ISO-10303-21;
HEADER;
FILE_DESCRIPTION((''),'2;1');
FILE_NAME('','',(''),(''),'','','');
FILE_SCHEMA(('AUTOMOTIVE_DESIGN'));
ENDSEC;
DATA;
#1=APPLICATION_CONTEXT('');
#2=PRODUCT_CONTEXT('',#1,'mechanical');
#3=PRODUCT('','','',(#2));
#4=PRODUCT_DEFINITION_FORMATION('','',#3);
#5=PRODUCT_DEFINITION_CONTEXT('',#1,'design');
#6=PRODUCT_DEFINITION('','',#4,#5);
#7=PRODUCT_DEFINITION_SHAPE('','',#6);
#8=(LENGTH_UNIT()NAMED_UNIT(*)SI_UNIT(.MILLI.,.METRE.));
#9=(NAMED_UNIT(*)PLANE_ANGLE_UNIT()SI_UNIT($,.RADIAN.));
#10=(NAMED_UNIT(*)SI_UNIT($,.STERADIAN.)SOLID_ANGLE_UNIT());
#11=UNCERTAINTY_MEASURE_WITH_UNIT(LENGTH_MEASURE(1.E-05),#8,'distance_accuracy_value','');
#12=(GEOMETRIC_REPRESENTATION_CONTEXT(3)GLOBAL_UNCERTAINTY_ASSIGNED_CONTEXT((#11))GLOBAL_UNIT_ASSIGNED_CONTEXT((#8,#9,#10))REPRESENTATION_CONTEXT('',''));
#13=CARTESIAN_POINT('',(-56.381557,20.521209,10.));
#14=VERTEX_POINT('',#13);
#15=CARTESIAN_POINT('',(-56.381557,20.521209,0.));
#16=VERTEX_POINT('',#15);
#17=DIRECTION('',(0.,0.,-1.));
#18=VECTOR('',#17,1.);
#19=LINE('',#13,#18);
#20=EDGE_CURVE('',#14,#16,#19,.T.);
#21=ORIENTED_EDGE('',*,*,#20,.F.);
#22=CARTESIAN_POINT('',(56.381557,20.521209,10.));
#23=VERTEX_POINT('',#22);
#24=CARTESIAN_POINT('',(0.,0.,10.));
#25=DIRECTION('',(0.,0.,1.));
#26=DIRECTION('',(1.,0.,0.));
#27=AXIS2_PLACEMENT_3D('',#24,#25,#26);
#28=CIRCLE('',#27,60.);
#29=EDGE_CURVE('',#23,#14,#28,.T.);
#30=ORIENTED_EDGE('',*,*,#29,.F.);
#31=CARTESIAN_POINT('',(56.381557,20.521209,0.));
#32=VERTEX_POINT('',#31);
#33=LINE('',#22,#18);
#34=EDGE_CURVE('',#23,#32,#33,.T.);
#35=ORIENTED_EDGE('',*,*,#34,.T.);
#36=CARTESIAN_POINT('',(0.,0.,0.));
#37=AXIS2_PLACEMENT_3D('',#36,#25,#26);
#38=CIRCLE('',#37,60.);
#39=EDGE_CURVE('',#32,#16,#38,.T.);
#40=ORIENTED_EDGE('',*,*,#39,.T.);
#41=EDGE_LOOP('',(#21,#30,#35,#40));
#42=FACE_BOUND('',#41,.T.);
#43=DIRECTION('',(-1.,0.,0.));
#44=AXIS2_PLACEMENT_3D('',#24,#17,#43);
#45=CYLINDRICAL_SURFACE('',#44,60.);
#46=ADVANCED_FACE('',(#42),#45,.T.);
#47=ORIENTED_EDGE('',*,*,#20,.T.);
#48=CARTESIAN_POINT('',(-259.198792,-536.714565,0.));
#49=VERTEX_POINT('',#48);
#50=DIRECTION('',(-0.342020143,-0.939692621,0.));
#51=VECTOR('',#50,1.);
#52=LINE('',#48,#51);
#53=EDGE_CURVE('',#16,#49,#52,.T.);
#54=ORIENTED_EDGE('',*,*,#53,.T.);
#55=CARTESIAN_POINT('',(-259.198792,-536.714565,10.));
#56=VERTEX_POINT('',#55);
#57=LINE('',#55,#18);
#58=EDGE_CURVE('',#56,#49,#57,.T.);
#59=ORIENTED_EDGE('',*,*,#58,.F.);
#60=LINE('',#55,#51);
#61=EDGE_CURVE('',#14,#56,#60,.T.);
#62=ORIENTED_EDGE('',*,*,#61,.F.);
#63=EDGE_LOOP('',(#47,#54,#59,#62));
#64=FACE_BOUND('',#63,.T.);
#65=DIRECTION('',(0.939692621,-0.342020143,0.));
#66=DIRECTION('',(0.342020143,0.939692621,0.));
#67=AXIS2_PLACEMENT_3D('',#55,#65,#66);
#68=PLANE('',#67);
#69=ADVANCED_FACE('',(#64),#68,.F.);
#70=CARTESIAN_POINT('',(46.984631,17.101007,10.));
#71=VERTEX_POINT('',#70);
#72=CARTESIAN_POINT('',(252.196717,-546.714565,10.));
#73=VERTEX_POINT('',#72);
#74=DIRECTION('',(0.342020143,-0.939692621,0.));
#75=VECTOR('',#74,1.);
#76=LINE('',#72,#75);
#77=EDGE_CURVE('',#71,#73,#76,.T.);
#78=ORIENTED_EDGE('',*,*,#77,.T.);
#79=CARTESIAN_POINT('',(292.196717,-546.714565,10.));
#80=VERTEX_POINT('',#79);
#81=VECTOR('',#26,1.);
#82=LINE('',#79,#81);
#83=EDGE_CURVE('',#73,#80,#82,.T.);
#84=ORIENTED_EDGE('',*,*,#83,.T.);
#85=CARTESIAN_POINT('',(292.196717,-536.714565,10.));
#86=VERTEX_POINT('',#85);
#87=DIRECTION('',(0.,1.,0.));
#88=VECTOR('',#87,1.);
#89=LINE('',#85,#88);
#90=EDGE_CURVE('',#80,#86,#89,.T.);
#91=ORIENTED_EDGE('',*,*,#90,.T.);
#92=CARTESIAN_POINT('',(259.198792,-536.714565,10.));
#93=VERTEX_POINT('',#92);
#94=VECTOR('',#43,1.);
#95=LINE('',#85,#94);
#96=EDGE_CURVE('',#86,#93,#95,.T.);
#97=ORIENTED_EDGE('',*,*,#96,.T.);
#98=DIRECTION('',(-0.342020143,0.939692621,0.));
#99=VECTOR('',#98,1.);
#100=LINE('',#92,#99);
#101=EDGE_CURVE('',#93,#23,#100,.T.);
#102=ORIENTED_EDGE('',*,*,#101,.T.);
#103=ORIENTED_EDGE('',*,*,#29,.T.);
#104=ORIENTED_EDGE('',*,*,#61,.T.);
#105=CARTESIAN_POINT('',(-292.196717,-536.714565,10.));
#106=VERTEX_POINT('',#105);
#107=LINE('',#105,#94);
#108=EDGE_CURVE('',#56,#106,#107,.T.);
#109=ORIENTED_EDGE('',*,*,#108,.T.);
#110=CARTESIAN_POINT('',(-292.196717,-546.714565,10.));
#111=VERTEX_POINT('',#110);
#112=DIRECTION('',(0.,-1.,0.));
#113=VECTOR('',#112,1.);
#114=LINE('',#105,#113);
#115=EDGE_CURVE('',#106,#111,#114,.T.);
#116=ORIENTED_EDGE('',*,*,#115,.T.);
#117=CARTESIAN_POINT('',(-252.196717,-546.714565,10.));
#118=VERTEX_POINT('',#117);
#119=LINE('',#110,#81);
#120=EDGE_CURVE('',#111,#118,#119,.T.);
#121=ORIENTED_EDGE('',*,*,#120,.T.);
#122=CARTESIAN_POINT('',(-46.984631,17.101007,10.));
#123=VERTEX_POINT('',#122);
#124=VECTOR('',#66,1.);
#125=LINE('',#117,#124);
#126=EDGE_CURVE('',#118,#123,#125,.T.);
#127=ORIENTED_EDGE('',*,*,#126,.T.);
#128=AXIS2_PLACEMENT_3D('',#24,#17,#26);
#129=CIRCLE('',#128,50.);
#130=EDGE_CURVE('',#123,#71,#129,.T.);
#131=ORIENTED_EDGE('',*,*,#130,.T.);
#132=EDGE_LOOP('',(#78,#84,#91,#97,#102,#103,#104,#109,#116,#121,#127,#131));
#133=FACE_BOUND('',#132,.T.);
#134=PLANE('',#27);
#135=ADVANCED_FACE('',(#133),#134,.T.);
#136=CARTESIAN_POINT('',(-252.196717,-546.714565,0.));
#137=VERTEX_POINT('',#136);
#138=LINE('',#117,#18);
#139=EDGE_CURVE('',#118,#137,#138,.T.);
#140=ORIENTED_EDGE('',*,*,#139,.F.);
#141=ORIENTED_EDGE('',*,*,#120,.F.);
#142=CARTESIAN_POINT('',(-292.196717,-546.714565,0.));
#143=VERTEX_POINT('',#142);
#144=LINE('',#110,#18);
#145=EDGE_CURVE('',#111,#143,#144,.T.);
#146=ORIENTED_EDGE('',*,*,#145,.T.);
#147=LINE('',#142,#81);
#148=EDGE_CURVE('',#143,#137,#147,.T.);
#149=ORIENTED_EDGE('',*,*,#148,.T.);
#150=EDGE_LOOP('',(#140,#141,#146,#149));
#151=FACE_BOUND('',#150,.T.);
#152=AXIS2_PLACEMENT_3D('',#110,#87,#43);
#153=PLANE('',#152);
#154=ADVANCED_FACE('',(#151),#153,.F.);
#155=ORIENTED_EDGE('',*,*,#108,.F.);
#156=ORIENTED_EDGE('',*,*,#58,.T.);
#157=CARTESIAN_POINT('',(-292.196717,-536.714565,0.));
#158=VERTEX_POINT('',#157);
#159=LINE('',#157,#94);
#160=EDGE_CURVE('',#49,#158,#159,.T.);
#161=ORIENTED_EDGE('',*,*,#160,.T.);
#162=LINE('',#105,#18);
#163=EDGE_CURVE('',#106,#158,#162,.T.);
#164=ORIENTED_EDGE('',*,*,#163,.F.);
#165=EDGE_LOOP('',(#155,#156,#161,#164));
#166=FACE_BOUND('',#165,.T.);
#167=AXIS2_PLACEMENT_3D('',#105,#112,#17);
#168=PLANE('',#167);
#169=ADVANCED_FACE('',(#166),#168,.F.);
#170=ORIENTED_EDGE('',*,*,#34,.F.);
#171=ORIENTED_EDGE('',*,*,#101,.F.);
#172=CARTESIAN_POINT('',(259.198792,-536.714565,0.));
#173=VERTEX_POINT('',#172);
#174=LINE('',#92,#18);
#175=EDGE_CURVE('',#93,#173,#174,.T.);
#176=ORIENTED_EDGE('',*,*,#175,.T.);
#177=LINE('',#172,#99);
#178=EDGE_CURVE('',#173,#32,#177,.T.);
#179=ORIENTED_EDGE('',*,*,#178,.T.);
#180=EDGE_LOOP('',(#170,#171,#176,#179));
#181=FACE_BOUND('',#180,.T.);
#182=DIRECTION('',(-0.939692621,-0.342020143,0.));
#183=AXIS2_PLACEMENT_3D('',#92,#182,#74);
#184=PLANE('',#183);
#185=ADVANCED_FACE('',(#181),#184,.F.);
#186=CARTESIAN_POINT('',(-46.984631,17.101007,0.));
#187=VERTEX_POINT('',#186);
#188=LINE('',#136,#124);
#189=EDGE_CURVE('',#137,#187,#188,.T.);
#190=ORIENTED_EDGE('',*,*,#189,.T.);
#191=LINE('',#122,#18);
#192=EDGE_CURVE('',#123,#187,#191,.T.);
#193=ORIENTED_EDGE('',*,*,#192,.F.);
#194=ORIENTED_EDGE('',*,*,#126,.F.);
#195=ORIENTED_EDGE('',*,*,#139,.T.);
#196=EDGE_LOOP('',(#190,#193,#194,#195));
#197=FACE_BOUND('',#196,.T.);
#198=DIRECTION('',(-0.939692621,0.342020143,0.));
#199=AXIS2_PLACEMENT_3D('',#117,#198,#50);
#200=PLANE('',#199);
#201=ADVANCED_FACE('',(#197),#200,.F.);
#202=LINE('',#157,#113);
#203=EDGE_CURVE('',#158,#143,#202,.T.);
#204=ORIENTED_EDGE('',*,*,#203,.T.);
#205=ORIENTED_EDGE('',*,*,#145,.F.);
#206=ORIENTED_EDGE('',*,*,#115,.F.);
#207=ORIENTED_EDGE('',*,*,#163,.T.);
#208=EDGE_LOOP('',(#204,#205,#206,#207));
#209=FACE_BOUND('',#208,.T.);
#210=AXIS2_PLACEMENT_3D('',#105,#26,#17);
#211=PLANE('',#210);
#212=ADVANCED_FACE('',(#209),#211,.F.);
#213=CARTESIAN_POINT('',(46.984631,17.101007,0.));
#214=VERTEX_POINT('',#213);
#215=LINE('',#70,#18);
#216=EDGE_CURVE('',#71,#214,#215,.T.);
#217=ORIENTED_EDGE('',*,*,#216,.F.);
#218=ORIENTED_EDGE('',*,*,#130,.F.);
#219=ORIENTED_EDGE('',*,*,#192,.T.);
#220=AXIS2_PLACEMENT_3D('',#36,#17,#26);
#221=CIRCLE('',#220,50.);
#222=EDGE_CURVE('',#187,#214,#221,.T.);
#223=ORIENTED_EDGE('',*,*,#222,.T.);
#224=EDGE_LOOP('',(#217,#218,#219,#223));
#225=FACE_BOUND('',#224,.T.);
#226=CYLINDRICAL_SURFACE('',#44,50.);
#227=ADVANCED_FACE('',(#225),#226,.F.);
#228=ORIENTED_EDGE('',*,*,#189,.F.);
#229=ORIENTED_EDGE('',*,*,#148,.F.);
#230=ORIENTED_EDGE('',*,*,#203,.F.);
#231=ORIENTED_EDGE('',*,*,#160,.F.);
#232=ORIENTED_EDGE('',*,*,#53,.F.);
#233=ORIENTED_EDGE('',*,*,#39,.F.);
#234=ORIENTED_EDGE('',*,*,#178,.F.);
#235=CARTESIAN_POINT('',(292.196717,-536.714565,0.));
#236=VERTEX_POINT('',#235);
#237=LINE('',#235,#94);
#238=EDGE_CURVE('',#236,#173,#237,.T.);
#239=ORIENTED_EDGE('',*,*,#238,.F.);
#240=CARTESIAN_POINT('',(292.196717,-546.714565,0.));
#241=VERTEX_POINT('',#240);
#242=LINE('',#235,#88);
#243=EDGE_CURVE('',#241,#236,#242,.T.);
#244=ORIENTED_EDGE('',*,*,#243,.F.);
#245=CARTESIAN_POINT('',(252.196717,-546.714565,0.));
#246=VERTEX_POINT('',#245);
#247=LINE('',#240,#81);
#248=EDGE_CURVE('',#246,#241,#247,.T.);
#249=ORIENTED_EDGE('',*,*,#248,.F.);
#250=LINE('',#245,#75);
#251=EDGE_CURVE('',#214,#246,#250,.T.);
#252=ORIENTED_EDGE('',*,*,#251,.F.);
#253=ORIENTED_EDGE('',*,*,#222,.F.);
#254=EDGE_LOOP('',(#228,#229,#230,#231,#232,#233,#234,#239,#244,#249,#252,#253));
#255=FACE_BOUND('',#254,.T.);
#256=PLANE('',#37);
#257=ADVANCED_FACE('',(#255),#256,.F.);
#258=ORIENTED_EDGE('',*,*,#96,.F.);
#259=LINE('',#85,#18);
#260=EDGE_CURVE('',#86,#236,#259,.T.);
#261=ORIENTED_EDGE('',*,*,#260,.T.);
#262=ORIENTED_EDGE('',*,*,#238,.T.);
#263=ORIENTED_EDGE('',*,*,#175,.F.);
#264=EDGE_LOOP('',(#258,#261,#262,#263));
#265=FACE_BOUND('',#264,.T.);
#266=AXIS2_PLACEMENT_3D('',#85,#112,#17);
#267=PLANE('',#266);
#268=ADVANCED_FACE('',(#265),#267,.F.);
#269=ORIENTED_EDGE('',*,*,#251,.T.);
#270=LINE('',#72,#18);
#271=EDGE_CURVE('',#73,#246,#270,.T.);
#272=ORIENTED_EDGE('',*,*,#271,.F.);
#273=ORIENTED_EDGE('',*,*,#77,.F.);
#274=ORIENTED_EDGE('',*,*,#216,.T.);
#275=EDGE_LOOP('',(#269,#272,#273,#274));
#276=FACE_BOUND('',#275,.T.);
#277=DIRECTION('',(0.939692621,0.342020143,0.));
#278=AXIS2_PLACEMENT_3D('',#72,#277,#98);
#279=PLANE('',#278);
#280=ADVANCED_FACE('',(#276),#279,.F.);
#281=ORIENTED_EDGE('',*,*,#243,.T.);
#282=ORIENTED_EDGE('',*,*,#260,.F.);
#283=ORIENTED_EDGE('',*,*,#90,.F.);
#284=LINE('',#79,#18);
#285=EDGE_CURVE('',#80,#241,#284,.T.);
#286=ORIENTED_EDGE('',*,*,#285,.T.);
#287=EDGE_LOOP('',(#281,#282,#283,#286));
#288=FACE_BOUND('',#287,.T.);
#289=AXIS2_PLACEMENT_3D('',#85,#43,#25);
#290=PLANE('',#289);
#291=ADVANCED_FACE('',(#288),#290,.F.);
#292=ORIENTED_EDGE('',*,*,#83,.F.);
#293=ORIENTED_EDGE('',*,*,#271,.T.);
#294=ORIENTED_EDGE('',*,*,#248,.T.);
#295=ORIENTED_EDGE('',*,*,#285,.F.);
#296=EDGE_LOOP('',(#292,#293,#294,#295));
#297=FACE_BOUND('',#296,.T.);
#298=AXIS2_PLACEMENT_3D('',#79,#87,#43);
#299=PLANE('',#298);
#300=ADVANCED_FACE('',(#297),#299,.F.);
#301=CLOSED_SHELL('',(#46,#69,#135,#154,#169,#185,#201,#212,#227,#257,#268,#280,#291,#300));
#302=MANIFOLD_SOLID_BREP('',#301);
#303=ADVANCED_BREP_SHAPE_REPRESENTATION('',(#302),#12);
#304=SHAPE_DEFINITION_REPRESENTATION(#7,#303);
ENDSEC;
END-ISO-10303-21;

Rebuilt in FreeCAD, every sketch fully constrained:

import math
import FreeCAD as App
import Part
import Sketcher
from FreeCAD import Vector
Q = App.Units.Quantity

doc = App.newDocument("Part")
body = doc.addObject("PartDesign::Body", "Body")

sketch1 = doc.addObject("Sketcher::SketchObject", "Sketch")
body.addObject(sketch1)
sketch1.AttachmentSupport = (doc.XY_Plane, [""])
sketch1.MapMode = "FlatFace"
sketch1.addGeometry([
    Part.LineSegment(Vector(-292, -547, 0), Vector(-252, -547, 0)),
    Part.LineSegment(Vector(-252, -547, 0), Vector(-47, 17, 0)),
    Part.ArcOfCircle(Part.Circle(Vector(0, 0, 0), Vector(0, 0, 1), 50), math.radians(20), math.radians(160)),
    Part.LineSegment(Vector(47, 17, 0), Vector(252, -547, 0)),
    Part.LineSegment(Vector(252, -547, 0), Vector(292, -547, 0)),
    Part.LineSegment(Vector(292, -547, 0), Vector(292, -537, 0)),
    Part.LineSegment(Vector(292, -537, 0), Vector(259, -537, 0)),
    Part.LineSegment(Vector(259, -537, 0), Vector(56, 21, 0)),
    Part.ArcOfCircle(Part.Circle(Vector(0, 0, 0), Vector(0, 0, 1), 60), math.radians(20), math.radians(160)),
    Part.LineSegment(Vector(-56, 21, 0), Vector(-259, -537, 0)),
    Part.LineSegment(Vector(-259, -537, 0), Vector(-292, -537, 0)),
    Part.LineSegment(Vector(-292, -537, 0), Vector(-292, -547, 0)),
], False)
sketch1.addConstraint([
    Sketcher.Constraint("Coincident", 0, 2, 1, 1),
    Sketcher.Constraint("Tangent", 1, 2, 2, 2),
    Sketcher.Constraint("Tangent", 2, 1, 3, 1),
    Sketcher.Constraint("Coincident", 3, 2, 4, 1),
    Sketcher.Constraint("Coincident", 4, 2, 5, 1),
    Sketcher.Constraint("Coincident", 5, 2, 6, 1),
    Sketcher.Constraint("Coincident", 6, 2, 7, 1),
    Sketcher.Constraint("Tangent", 7, 2, 8, 1),
    Sketcher.Constraint("Tangent", 8, 2, 9, 1),
    Sketcher.Constraint("Coincident", 9, 2, 10, 1),
    Sketcher.Constraint("Coincident", 10, 2, 11, 1),
    Sketcher.Constraint("Coincident", 11, 2, 0, 1),
    Sketcher.Constraint("Horizontal", 0),
    Sketcher.Constraint("Horizontal", 4),
    Sketcher.Constraint("Vertical", 5),
    Sketcher.Constraint("Horizontal", 6),
    Sketcher.Constraint("Horizontal", 10),
    Sketcher.Constraint("Vertical", 11),
    Sketcher.Constraint("Coincident", 2, 3, -1, 1),
    Sketcher.Constraint("Coincident", 8, 3, -1, 1),
    Sketcher.Constraint("Symmetric", 0, 2, 3, 2, -2),
    Sketcher.Constraint("Symmetric", 6, 2, 9, 2, -2),
    Sketcher.Constraint("Parallel", 3, 7),
    Sketcher.Constraint("Equal", 0, 4),
    Sketcher.Constraint("Radius", 2, Q("50 mm")),
    Sketcher.Constraint("Radius", 8, Q("60 mm")),
    Sketcher.Constraint("DistanceX", 0, 1, 0, 2, Q("40 mm")),
    Sketcher.Constraint("DistanceY", 5, 1, 5, 2, Q("10 mm")),
    Sketcher.Constraint("Angle", 1, Q("70 deg")),
    Sketcher.Constraint("Distance", 1, Q("600 mm")),
])
pad1 = doc.addObject("PartDesign::Pad", "Pad")
body.addObject(pad1)
pad1.Profile = sketch1
pad1.Length = 10

doc.recompute()
